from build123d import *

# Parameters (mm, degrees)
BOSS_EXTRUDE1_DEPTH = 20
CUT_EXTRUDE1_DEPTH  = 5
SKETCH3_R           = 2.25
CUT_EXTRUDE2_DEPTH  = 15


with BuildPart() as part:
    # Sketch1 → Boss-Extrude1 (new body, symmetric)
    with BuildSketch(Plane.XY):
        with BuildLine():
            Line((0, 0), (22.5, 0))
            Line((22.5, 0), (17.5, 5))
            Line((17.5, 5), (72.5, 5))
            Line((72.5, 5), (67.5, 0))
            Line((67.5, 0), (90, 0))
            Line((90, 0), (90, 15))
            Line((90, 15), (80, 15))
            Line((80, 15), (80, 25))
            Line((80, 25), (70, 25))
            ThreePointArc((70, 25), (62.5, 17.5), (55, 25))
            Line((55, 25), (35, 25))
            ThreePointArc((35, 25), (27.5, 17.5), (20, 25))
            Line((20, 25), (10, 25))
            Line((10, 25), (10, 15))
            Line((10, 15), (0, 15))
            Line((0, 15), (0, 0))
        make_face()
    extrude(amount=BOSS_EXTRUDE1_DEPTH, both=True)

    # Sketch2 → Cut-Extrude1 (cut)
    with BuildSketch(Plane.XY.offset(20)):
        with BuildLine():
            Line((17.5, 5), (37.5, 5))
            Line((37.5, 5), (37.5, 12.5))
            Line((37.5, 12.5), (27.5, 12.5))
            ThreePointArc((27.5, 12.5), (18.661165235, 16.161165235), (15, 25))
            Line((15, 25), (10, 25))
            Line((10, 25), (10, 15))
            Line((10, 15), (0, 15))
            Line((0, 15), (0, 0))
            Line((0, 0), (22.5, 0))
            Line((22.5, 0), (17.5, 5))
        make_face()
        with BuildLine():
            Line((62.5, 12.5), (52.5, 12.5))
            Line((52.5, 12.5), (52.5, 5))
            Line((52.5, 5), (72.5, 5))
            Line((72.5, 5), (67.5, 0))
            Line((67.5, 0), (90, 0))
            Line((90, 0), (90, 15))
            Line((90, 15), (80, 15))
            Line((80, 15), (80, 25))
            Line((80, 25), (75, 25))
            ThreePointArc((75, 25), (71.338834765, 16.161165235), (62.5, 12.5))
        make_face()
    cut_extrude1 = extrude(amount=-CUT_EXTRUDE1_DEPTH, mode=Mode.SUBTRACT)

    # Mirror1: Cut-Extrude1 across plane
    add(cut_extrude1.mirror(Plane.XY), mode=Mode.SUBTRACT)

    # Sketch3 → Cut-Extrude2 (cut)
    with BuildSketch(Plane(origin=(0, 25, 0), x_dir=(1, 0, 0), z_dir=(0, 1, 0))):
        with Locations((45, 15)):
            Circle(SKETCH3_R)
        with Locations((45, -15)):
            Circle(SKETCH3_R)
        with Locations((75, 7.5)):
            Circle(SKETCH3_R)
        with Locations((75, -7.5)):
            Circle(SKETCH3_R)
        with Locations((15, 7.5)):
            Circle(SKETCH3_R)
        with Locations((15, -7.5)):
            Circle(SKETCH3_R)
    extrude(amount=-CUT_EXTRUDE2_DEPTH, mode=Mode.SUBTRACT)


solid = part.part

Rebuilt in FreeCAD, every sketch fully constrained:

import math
import FreeCAD as App
import Part
import Sketcher
from FreeCAD import Vector

doc = App.newDocument("Part")
body = doc.addObject("PartDesign::Body", "Body")

# Sketch on XY plane
sketch1 = body.newObject("Sketcher::SketchObject", "Sketch")
sketch1.AttachmentSupport = (doc.getObject("XY_Plane"), [""])
sketch1.MapMode = "FlatFace"
sketch1.addGeometry(Part.LineSegment(Vector(0, 0, 0), Vector(22.5, 0, 0)), False)
sketch1.addGeometry(Part.LineSegment(Vector(22.5, 0, 0), Vector(17.5, 5, 0)), False)
sketch1.addGeometry(Part.LineSegment(Vector(17.5, 5, 0), Vector(72.5, 5, 0)), False)
sketch1.addGeometry(Part.LineSegment(Vector(72.5, 5, 0), Vector(67.5, 0, 0)), False)
sketch1.addGeometry(Part.LineSegment(Vector(67.5, 0, 0), Vector(90, 0, 0)), False)
sketch1.addGeometry(Part.LineSegment(Vector(90, 0, 0), Vector(90, 15, 0)), False)
sketch1.addGeometry(Part.LineSegment(Vector(90, 15, 0), Vector(80, 15, 0)), False)
sketch1.addGeometry(Part.LineSegment(Vector(80, 15, 0), Vector(80, 25, 0)), False)
sketch1.addGeometry(Part.LineSegment(Vector(80, 25, 0), Vector(70, 25, 0)), False)
sketch1.addGeometry(Part.ArcOfCircle(Part.Circle(Vector(62.5, 25, 0), Vector(0, 0, 1), 7.5), math.radians(180), math.radians(360)), False)
sketch1.addGeometry(Part.LineSegment(Vector(55, 25, 0), Vector(35, 25, 0)), False)
sketch1.addGeometry(Part.ArcOfCircle(Part.Circle(Vector(27.5, 25, 0), Vector(0, 0, 1), 7.5), math.radians(180), math.radians(360)), False)
sketch1.addGeometry(Part.LineSegment(Vector(20, 25, 0), Vector(10, 25, 0)), False)
sketch1.addGeometry(Part.LineSegment(Vector(10, 25, 0), Vector(10, 15, 0)), False)
sketch1.addGeometry(Part.LineSegment(Vector(10, 15, 0), Vector(0, 15, 0)), False)
sketch1.addGeometry(Part.LineSegment(Vector(0, 15, 0), Vector(0, 0, 0)), False)
sketch1.addConstraint(Sketcher.Constraint("Coincident", 0, 2, 1, 1))
sketch1.addConstraint(Sketcher.Constraint("Coincident", 1, 2, 2, 1))
sketch1.addConstraint(Sketcher.Constraint("Coincident", 2, 2, 3, 1))
sketch1.addConstraint(Sketcher.Constraint("Coincident", 3, 2, 4, 1))
sketch1.addConstraint(Sketcher.Constraint("Coincident", 4, 2, 5, 1))
sketch1.addConstraint(Sketcher.Constraint("Coincident", 5, 2, 6, 1))
sketch1.addConstraint(Sketcher.Constraint("Coincident", 6, 2, 7, 1))
sketch1.addConstraint(Sketcher.Constraint("Coincident", 7, 2, 8, 1))
sketch1.addConstraint(Sketcher.Constraint("Coincident", 8, 2, 9, 2))
sketch1.addConstraint(Sketcher.Constraint("Coincident", 9, 1, 10, 1))
sketch1.addConstraint(Sketcher.Constraint("Coincident", 10, 2, 11, 2))
sketch1.addConstraint(Sketcher.Constraint("Coincident", 11, 1, 12, 1))
sketch1.addConstraint(Sketcher.Constraint("Coincident", 12, 2, 13, 1))
sketch1.addConstraint(Sketcher.Constraint("Coincident", 13, 2, 14, 1))
sketch1.addConstraint(Sketcher.Constraint("Coincident", 14, 2, 15, 1))
sketch1.addConstraint(Sketcher.Constraint("Coincident", 15, 2, 0, 1))
sketch1.addConstraint(Sketcher.Constraint("Horizontal", 0))
sketch1.addConstraint(Sketcher.Constraint("Horizontal", 2))
sketch1.addConstraint(Sketcher.Constraint("Horizontal", 4))
sketch1.addConstraint(Sketcher.Constraint("Vertical", 5))
sketch1.addConstraint(Sketcher.Constraint("Horizontal", 6))
sketch1.addConstraint(Sketcher.Constraint("Vertical", 7))
sketch1.addConstraint(Sketcher.Constraint("Horizontal", 8))
sketch1.addConstraint(Sketcher.Constraint("Horizontal", 10))
sketch1.addConstraint(Sketcher.Constraint("Horizontal", 12))
sketch1.addConstraint(Sketcher.Constraint("Vertical", 13))
sketch1.addConstraint(Sketcher.Constraint("Horizontal", 14))
sketch1.addConstraint(Sketcher.Constraint("Vertical", 15))
sketch1.addConstraint(Sketcher.Constraint("Coincident", 15, 2, -1, 1))
sketch1.addConstraint(Sketcher.Constraint("Equal", 9, 11))
sketch1.addConstraint(Sketcher.Constraint("PointOnObject", 3, 2, -1))
sketch1.addConstraint(Sketcher.Constraint("Perpendicular", 1, 3))
sketch1.addConstraint(Sketcher.Constraint("Horizontal", 9, 3, 11, 3))
sketch1.addConstraint(Sketcher.Constraint("Horizontal", 11, 3, 7, 2))
sketch1.addConstraint(Sketcher.Constraint("Horizontal", 8, 2, 9, 1))
sketch1.addConstraint(Sketcher.Constraint("Horizontal", 10, 2, 11, 1))
sketch1.addConstraint(Sketcher.Constraint("Horizontal", 6, 2, 13, 2))
sketch1.addConstraint(Sketcher.Constraint("Equal", 0, 4))
sketch1.addConstraint(Sketcher.Constraint("Equal", 6, 8))
sketch1.addConstraint(Sketcher.Constraint("Equal", 8, 12))
sketch1.addConstraint(Sketcher.Constraint("Equal", 12, 14))
sketch1.addConstraint(Sketcher.Constraint("Equal", 14, 7))
sketch1.addConstraint(Sketcher.Constraint("Equal", 1, 3))
sketch1.addConstraint(Sketcher.Constraint("Radius", 9, 7.5))
sketch1.addConstraint(Sketcher.Constraint("DistanceX", 2, 1, 2, 2, 55.0))
sketch1.addConstraint(Sketcher.Constraint("DistanceX", 6, 2, 6, 1, 10.0))
sketch1.addConstraint(Sketcher.Constraint("DistanceX", 10, 2, 10, 1, 20.0))
sketch1.addConstraint(Sketcher.Constraint("DistanceY", 5, 1, 5, 2, 15.0))
sketch1.addConstraint(Sketcher.Constraint("DistanceX", 0, 1, 0, 2, 22.5))
pad1 = body.newObject("PartDesign::Pad", "Pad")
pad1.Profile = sketch1
pad1.Length = 40
pad1.Midplane = True

# Sketch on XY plane
sketch2 = body.newObject("Sketcher::SketchObject", "Sketch001")
sketch2.AttachmentSupport = (doc.getObject("XY_Plane"), [""])
sketch2.MapMode = "FlatFace"
sketch2.AttachmentOffset = App.Placement(Vector(0, 0, 20), App.Rotation())
sketch2.addGeometry(Part.LineSegment(Vector(17.5, 5, 0), Vector(37.5, 5, 0)), False)
sketch2.addGeometry(Part.LineSegment(Vector(37.5, 5, 0), Vector(37.5, 12.5, 0)), False)
sketch2.addGeometry(Part.LineSegment(Vector(37.5, 12.5, 0), Vector(27.5, 12.5, 0)), False)
sketch2.addGeometry(Part.ArcOfCircle(Part.Circle(Vector(27.5, 25, 0), Vector(0, 0, 1), 12.5), math.radians(180), math.radians(270)), False)
sketch2.addGeometry(Part.LineSegment(Vector(15, 25, 0), Vector(10, 25, 0)), False)
sketch2.addGeometry(Part.LineSegment(Vector(10, 25, 0), Vector(10, 15, 0)), False)
sketch2.addGeometry(Part.LineSegment(Vector(10, 15, 0), Vector(0, 15, 0)), False)
sketch2.addGeometry(Part.LineSegment(Vector(0, 15, 0), Vector(0, 0, 0)), False)
sketch2.addGeometry(Part.LineSegment(Vector(0, 0, 0), Vector(22.5, 0, 0)), False)
sketch2.addGeometry(Part.LineSegment(Vector(22.5, 0, 0), Vector(17.5, 5, 0)), False)
sketch2.addGeometry(Part.LineSegment(Vector(62.5, 12.5, 0), Vector(52.5, 12.5, 0)), False)
sketch2.addGeometry(Part.LineSegment(Vector(52.5, 12.5, 0), Vector(52.5, 5, 0)), False)
sketch2.addGeometry(Part.LineSegment(Vector(52.5, 5, 0), Vector(72.5, 5, 0)), False)
sketch2.addGeometry(Part.LineSegment(Vector(72.5, 5, 0), Vector(67.5, 0, 0)), False)
sketch2.addGeometry(Part.LineSegment(Vector(67.5, 0, 0), Vector(90, 0, 0)), False)
sketch2.addGeometry(Part.LineSegment(Vector(90, 0, 0), Vector(90, 15, 0)), False)
sketch2.addGeometry(Part.LineSegment(Vector(90, 15, 0), Vector(80, 15, 0)), False)
sketch2.addGeometry(Part.LineSegment(Vector(80, 15, 0), Vector(80, 25, 0)), False)
sketch2.addGeometry(Part.LineSegment(Vector(80, 25, 0), Vector(75, 25, 0)), False)
sketch2.addGeometry(Part.ArcOfCircle(Part.Circle(Vector(62.5, 25, 0), Vector(0, 0, 1), 12.5), math.radians(-90), math.radians(0)), False)
sketch2.addConstraint(Sketcher.Constraint("Coincident", 0, 2, 1, 1))
sketch2.addConstraint(Sketcher.Constraint("Coincident", 1, 2, 2, 1))
sketch2.addConstraint(Sketcher.Constraint("Tangent", 2, 2, 3, 2))
sketch2.addConstraint(Sketcher.Constraint("Coincident", 3, 1, 4, 1))
sketch2.addConstraint(Sketcher.Constraint("Coincident", 4, 2, 5, 1))
sketch2.addConstraint(Sketcher.Constraint("Coincident", 5, 2, 6, 1))
sketch2.addConstraint(Sketcher.Constraint("Coincident", 6, 2, 7, 1))
sketch2.addConstraint(Sketcher.Constraint("Coincident", 7, 2, 8, 1))
sketch2.addConstraint(Sketcher.Constraint("Coincident", 8, 2, 9, 1))
sketch2.addConstraint(Sketcher.Constraint("Coincident", 9, 2, 0, 1))
sketch2.addConstraint(Sketcher.Constraint("Coincident", 10, 2, 11, 1))
sketch2.addConstraint(Sketcher.Constraint("Coincident", 11, 2, 12, 1))
sketch2.addConstraint(Sketcher.Constraint("Coincident", 12, 2, 13, 1))
sketch2.addConstraint(Sketcher.Constraint("Coincident", 13, 2, 14, 1))
sketch2.addConstraint(Sketcher.Constraint("Coincident", 14, 2, 15, 1))
sketch2.addConstraint(Sketcher.Constraint("Coincident", 15, 2, 16, 1))
sketch2.addConstraint(Sketcher.Constraint("Coincident", 16, 2, 17, 1))
sketch2.addConstraint(Sketcher.Constraint("Coincident", 17, 2, 18, 1))
sketch2.addConstraint(Sketcher.Constraint("Coincident", 18, 2, 19, 2))
sketch2.addConstraint(Sketcher.Constraint("Tangent", 19, 1, 10, 1))
sketch2.addConstraint(Sketcher.Constraint("Horizontal", 0))
sketch2.addConstraint(Sketcher.Constraint("Vertical", 1))
sketch2.addConstraint(Sketcher.Constraint("Horizontal", 2))
sketch2.addConstraint(Sketcher.Constraint("Horizontal", 4))
sketch2.addConstraint(Sketcher.Constraint("Vertical", 5))
sketch2.addConstraint(Sketcher.Constraint("Horizontal", 6))
sketch2.addConstraint(Sketcher.Constraint("Vertical", 7))
sketch2.addConstraint(Sketcher.Constraint("Horizontal", 8))
sketch2.addConstraint(Sketcher.Constraint("Horizontal", 10))
sketch2.addConstraint(Sketcher.Constraint("Vertical", 11))
sketch2.addConstraint(Sketcher.Constraint("Horizontal", 12))
sketch2.addConstraint(Sketcher.Constraint("Horizontal", 14))
sketch2.addConstraint(Sketcher.Constraint("Vertical", 15))
sketch2.addConstraint(Sketcher.Constraint("Horizontal", 16))
sketch2.addConstraint(Sketcher.Constraint("Vertical", 17))
sketch2.addConstraint(Sketcher.Constraint("Horizontal", 18))
sketch2.addConstraint(Sketcher.Constraint("Coincident", 7, 2, -1, 1))
sketch2.addConstraint(Sketcher.Constraint("Equal", 3, 19))
sketch2.addConstraint(Sketcher.Constraint("PointOnObject", 13, 2, -1))
sketch2.addConstraint(Sketcher.Constraint("Perpendicular", 9, 13))
sketch2.addConstraint(Sketcher.Constraint("Horizontal", 3, 3, 19, 3))
sketch2.addConstraint(Sketcher.Constraint("Horizontal", 19, 3, 3, 1))
sketch2.addConstraint(Sketcher.Constraint("Horizontal", 9, 2, 11, 2))
sketch2.addConstraint(Sketcher.Constraint("Horizontal", 6, 2, 15, 2))
sketch2.addConstraint(Sketcher.Constraint("Horizontal", 4, 2, 17, 2))
sketch2.addConstraint(Sketcher.Constraint("Equal", 2, 6))
sketch2.addConstraint(Sketcher.Constraint("Equal", 6, 10))
sketch2.addConstraint(Sketcher.Constraint("Equal", 0, 12))
sketch2.addConstraint(Sketcher.Constraint("Equal", 8, 14))
sketch2.addConstraint(Sketcher.Constraint("Equal", 10, 16))
sketch2.addConstraint(Sketcher.Constraint("Equal", 4, 18))
sketch2.addConstraint(Sketcher.Constraint("Equal", 16, 5))
sketch2.addConstraint(Sketcher.Constraint("Radius", 3, 12.5))
sketch2.addConstraint(Sketcher.Constraint("DistanceX", 0, 1, 0, 2, 20.0))
sketch2.addConstraint(Sketcher.Constraint("DistanceX", 2, 2, 2, 1, 10.0))
sketch2.addConstraint(Sketcher.Constraint("DistanceX", 4, 2, 4, 1, 5.0))
sketch2.addConstraint(Sketcher.Constraint("DistanceY", 7, 2, 7, 1, 15.0))
sketch2.addConstraint(Sketcher.Constraint("DistanceX", 8, 1, 8, 2, 22.5))
sketch2.addConstraint(Sketcher.Constraint("DistanceX", -1, 1, 14, 2, 90.0))
pocket1 = body.newObject("PartDesign::Pocket", "Pocket")
pocket1.Profile = sketch2
pocket1.Length = 5
doc.recompute()

mirrored = body.newObject("PartDesign::Mirrored", "Mirrored")
mirrored.Originals = [pocket1]
mirrored.MirrorPlane = (doc.getObject("XY_Plane"), [""])
body.Tip = mirrored

# Sketch on XZ plane
sketch3 = body.newObject("Sketcher::SketchObject", "Sketch002")
sketch3.AttachmentSupport = (doc.getObject("XZ_Plane"), [""])
sketch3.MapMode = "FlatFace"
sketch3.AttachmentOffset = App.Placement(Vector(0, 0, -25), App.Rotation())
sketch3.addGeometry(Part.Circle(Vector(45, -15, 0), Vector(0, 0, 1), 2.25), False)
sketch3.addGeometry(Part.Circle(Vector(45, 15, 0), Vector(0, 0, 1), 2.25), False)
sketch3.addGeometry(Part.Circle(Vector(75, -7.5, 0), Vector(0, 0, 1), 2.25), False)
sketch3.addGeometry(Part.Circle(Vector(75, 7.5, 0), Vector(0, 0, 1), 2.25), False)
sketch3.addGeometry(Part.Circle(Vector(15, -7.5, 0), Vector(0, 0, 1), 2.25), False)
sketch3.addGeometry(Part.Circle(Vector(15, 7.5, 0), Vector(0, 0, 1), 2.25), False)
sketch3.addConstraint(Sketcher.Constraint("Equal", 0, 1))
sketch3.addConstraint(Sketcher.Constraint("Equal", 1, 2))
sketch3.addConstraint(Sketcher.Constraint("Equal", 2, 3))
sketch3.addConstraint(Sketcher.Constraint("Equal", 3, 4))
sketch3.addConstraint(Sketcher.Constraint("Equal", 4, 5))
sketch3.addConstraint(Sketcher.Constraint("Symmetric", 0, 3, 1, 3, -1))
sketch3.addConstraint(Sketcher.Constraint("Symmetric", 2, 3, 3, 3, -1))
sketch3.addConstraint(Sketcher.Constraint("Symmetric", 4, 3, 5, 3, -1))
sketch3.addConstraint(Sketcher.Constraint("Horizontal", 2, 3, 4, 3))
sketch3.addConstraint(Sketcher.Constraint("Diameter", 0, 4.5))
sketch3.addConstraint(Sketcher.Constraint("DistanceX", -1, 1, 0, 3, 45.0))
sketch3.addConstraint(Sketcher.Constraint("DistanceY", 0, 3, -1, 1, 15.0))
sketch3.addConstraint(Sketcher.Constraint("DistanceX", -1, 1, 2, 3, 75.0))
sketch3.addConstraint(Sketcher.Constraint("DistanceX", -1, 1, 4, 3, 15.0))
sketch3.addConstraint(Sketcher.Constraint("DistanceY", 2, 3, 3, 3, 15.0))
pocket2 = body.newObject("PartDesign::Pocket", "Pocket001")
pocket2.Profile = sketch3
pocket2.Length = 15
pocket2.Reversed = True

doc.recompute()
